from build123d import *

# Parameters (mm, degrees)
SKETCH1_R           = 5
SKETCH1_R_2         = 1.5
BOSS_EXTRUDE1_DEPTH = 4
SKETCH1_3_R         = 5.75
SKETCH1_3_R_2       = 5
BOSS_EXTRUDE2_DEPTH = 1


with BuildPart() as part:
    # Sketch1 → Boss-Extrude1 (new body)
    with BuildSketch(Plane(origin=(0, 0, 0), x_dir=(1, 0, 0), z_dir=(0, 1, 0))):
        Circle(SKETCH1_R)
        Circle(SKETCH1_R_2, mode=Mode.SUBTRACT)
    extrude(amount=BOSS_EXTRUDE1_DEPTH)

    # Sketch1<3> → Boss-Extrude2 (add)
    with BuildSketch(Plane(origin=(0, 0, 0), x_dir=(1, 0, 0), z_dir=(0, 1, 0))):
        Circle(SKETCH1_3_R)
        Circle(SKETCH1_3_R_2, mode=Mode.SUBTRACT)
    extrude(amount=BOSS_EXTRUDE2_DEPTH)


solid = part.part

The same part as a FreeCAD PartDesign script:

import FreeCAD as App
import Part
import Sketcher
Q = App.Units.Quantity

doc = App.newDocument("Part")
body = doc.addObject("PartDesign::Body", "Body")

sketch1 = body.newObject("Sketcher::SketchObject", "Sketch")
sketch1.AttachmentSupport = (doc.getObject("XZ_Plane"), [""])
sketch1.MapMode = "FlatFace"
sketch1.addGeometry([
    Part.Circle(App.Vector(0, 0, 0), App.Vector(0, 0, 1), 5),
    Part.Circle(App.Vector(0, 0, 0), App.Vector(0, 0, 1), 1.5),
], False)
sketch1.addConstraint([
    Sketcher.Constraint("Coincident", 0, 3, -1, 1),
    Sketcher.Constraint("Coincident", 1, 3, -1, 1),
    Sketcher.Constraint("Diameter", 0, Q("10 mm")),
    Sketcher.Constraint("Diameter", 1, Q("3 mm")),
])
pad1 = body.newObject("PartDesign::Pad", "Pad")
pad1.Profile = sketch1
pad1.Length = 4
pad1.Reversed = True

sketch2 = body.newObject("Sketcher::SketchObject", "Sketch001")
sketch2.AttachmentSupport = (doc.getObject("XZ_Plane"), [""])
sketch2.MapMode = "FlatFace"
sketch2.addGeometry([
    Part.Circle(App.Vector(0, 0, 0), App.Vector(0, 0, 1), 6),
    Part.Circle(App.Vector(0, 0, 0), App.Vector(0, 0, 1), 5),
], False)
sketch2.addConstraint([
    Sketcher.Constraint("Coincident", 0, 3, -1, 1),
    Sketcher.Constraint("Coincident", 1, 3, -1, 1),
    Sketcher.Constraint("Diameter", 1, Q("10 mm")),
    Sketcher.Constraint("Diameter", 0, Q("11.5 mm")),
])
pad2 = body.newObject("PartDesign::Pad", "Pad001")
pad2.Profile = sketch2
pad2.Length = 1
pad2.Reversed = True

doc.recompute()
